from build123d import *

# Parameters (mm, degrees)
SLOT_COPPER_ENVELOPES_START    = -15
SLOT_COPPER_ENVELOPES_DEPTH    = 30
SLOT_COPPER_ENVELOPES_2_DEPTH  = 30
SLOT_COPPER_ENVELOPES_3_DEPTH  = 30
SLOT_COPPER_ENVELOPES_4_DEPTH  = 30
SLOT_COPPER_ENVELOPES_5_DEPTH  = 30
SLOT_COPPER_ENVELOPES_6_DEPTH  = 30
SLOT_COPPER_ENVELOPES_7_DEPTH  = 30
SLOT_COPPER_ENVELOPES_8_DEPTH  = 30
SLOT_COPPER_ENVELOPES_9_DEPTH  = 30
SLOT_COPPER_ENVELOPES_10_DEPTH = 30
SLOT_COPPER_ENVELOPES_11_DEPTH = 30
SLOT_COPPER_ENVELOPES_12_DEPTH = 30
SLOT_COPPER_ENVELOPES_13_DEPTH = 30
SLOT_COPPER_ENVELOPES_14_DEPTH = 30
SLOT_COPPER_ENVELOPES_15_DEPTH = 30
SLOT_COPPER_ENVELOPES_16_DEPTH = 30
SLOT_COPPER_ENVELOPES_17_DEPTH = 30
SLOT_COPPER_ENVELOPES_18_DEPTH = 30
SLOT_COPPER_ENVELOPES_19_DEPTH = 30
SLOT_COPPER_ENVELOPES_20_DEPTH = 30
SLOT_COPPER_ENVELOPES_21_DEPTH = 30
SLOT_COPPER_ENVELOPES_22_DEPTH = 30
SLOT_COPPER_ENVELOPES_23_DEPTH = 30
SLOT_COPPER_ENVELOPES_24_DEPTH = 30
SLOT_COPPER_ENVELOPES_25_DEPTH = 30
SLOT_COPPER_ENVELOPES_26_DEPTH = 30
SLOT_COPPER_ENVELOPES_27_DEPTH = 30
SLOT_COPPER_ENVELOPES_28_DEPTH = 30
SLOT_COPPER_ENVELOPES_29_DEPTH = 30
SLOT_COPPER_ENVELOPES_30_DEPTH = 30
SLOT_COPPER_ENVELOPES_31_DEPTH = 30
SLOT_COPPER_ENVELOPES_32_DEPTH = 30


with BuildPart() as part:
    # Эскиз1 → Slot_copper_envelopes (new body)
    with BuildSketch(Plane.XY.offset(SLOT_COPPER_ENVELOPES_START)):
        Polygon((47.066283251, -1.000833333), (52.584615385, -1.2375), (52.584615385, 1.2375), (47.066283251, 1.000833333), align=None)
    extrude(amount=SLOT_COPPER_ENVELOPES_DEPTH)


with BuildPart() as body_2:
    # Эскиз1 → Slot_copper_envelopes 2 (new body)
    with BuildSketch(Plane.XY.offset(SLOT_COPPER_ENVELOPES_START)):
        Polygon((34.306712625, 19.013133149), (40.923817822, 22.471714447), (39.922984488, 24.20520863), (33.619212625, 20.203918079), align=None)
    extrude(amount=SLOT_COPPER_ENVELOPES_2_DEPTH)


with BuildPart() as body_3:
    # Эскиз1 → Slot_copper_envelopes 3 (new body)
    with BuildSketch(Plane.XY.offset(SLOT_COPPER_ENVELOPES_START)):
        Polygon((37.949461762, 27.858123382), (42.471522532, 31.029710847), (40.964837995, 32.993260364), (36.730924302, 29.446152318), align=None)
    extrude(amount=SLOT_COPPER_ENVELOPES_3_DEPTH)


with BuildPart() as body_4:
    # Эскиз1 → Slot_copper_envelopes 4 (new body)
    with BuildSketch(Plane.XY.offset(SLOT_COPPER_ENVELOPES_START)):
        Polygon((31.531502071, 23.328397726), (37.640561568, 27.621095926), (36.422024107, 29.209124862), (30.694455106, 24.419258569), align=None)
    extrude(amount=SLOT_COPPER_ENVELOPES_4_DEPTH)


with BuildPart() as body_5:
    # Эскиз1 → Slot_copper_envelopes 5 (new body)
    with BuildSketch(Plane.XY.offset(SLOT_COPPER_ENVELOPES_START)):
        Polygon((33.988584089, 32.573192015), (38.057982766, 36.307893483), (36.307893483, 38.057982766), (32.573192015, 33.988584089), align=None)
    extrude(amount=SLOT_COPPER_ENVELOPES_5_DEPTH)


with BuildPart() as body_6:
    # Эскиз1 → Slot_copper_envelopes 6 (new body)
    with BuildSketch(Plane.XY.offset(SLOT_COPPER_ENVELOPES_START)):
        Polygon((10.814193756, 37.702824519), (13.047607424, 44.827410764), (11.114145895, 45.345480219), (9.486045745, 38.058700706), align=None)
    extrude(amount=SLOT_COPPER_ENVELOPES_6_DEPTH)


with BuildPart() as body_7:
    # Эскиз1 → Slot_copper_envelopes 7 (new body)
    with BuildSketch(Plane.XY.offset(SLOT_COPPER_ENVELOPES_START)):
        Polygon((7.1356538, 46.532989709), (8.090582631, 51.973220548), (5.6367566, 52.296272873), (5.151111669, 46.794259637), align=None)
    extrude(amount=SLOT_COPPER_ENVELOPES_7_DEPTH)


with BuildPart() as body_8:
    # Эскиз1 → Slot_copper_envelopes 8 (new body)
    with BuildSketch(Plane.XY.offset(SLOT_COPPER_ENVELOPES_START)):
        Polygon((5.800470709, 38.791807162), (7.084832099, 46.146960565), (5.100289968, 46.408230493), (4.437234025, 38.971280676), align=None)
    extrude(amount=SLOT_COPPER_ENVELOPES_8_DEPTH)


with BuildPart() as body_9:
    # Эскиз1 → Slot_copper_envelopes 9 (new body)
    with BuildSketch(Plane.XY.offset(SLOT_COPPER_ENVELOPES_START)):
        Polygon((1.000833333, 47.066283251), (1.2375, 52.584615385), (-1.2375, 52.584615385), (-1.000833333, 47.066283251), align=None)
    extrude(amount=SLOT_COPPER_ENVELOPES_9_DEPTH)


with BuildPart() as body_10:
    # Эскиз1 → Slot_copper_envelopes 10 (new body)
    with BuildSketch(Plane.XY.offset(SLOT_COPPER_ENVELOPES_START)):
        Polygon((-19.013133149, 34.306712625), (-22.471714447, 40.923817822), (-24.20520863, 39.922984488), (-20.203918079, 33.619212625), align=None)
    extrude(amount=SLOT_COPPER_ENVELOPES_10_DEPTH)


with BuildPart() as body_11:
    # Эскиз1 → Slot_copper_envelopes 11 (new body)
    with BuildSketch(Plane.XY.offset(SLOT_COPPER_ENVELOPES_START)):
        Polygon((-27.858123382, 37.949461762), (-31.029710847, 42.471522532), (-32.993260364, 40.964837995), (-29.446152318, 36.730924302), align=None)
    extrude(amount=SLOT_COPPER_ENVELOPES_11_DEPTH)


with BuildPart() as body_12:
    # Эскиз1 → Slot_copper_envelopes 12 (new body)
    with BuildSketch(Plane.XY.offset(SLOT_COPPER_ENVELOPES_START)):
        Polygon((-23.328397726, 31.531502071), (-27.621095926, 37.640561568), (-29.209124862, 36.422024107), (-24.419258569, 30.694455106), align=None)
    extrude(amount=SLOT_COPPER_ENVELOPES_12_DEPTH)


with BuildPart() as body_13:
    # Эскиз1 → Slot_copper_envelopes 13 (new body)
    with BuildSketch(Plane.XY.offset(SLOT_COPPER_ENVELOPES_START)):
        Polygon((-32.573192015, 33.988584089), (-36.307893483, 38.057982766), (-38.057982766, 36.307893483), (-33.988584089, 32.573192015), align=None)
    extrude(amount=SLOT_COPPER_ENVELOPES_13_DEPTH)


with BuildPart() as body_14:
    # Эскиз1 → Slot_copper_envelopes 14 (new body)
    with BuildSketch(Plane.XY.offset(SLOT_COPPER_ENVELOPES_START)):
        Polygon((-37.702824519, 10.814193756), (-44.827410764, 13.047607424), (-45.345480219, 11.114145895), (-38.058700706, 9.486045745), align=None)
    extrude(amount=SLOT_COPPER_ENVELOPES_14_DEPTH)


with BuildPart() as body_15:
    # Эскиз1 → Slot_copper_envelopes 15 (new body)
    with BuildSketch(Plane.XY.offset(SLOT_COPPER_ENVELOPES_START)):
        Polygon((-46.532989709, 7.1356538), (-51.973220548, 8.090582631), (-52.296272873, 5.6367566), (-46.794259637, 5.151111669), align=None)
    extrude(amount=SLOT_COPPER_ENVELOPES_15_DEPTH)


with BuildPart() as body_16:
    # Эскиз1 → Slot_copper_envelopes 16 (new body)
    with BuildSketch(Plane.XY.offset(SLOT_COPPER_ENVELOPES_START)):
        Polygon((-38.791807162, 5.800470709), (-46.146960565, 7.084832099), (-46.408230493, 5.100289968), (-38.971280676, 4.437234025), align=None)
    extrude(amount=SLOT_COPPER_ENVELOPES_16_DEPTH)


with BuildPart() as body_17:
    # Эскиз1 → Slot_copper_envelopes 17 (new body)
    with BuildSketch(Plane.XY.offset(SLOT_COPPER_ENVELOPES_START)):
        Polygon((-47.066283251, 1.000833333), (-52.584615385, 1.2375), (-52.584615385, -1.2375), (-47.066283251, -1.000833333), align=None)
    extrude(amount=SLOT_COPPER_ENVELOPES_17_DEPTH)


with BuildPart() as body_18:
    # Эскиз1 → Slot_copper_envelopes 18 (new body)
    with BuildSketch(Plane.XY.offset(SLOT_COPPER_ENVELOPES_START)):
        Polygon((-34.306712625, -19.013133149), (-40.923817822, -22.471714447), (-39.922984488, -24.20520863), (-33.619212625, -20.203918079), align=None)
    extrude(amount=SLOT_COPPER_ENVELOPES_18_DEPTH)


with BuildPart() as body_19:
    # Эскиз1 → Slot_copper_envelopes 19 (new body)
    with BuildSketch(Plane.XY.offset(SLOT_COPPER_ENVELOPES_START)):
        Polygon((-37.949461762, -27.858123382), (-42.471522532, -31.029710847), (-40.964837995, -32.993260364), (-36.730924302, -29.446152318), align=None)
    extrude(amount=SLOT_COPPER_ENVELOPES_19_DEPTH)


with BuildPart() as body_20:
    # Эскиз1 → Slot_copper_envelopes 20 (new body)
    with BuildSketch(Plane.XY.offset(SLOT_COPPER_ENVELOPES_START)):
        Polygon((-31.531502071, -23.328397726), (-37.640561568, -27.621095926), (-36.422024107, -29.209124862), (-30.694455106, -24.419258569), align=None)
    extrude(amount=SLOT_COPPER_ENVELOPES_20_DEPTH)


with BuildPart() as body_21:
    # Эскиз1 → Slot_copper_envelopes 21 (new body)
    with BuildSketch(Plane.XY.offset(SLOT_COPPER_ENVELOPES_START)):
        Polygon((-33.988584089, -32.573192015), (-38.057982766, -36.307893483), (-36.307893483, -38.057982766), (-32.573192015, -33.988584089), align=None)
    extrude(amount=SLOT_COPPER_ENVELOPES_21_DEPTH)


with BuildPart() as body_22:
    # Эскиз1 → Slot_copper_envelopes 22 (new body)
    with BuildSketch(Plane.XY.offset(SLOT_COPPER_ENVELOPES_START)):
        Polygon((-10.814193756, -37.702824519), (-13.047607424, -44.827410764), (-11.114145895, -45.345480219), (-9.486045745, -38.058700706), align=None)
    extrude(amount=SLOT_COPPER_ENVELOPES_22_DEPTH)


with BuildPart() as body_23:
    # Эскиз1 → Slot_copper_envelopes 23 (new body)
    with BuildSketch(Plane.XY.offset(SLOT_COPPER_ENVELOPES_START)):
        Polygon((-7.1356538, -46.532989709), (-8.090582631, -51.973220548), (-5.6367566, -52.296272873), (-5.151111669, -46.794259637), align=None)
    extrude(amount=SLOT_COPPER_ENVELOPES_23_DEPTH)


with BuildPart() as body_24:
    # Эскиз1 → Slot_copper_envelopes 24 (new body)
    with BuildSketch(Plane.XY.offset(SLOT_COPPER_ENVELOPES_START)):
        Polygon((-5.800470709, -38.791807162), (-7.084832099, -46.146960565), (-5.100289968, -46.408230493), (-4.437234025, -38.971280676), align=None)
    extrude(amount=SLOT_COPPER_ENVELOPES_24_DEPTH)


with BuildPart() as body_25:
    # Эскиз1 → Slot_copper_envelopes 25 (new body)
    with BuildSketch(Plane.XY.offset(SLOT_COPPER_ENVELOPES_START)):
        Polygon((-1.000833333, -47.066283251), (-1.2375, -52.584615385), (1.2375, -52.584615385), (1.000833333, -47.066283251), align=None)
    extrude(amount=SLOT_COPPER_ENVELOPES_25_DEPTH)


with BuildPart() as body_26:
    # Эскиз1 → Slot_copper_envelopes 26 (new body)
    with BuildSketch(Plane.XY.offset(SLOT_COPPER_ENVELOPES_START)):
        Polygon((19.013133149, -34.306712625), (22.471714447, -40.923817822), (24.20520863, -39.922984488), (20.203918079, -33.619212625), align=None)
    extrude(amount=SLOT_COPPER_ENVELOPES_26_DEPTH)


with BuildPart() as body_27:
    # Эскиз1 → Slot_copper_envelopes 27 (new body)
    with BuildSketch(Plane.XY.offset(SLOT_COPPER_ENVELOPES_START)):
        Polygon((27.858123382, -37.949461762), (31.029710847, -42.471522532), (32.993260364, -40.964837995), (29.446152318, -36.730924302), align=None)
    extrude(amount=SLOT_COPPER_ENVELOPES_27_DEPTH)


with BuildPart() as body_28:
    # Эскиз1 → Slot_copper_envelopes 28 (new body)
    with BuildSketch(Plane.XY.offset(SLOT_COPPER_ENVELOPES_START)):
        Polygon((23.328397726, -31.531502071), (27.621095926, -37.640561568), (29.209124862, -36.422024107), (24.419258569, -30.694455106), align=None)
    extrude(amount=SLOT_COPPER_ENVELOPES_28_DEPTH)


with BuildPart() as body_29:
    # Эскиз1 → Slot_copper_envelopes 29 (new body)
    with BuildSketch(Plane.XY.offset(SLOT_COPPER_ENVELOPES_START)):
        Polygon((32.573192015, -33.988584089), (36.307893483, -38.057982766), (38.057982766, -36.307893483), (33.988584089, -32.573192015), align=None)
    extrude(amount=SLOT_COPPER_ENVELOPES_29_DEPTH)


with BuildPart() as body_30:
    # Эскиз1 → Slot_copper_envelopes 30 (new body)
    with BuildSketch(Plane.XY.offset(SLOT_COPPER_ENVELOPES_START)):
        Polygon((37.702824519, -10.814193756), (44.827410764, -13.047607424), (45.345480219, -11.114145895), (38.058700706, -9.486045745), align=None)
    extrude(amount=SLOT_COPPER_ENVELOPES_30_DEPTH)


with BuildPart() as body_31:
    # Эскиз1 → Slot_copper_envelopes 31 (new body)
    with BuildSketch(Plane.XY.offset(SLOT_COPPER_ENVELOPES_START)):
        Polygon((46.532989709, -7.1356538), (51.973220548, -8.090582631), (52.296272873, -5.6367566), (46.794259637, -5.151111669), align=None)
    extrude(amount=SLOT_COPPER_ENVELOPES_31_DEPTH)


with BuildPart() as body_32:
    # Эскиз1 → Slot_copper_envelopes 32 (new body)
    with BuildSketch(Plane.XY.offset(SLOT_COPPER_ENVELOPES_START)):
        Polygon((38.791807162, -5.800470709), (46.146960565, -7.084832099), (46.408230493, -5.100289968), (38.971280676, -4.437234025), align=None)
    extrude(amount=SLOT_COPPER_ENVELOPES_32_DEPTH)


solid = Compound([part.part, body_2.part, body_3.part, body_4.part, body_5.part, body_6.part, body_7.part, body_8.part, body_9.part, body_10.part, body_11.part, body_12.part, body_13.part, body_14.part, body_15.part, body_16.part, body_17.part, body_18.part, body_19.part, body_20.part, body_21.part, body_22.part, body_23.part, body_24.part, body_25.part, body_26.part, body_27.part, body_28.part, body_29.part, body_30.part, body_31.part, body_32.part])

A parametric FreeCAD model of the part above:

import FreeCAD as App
import Part
import Sketcher
Q = App.Units.Quantity


def add_polygon(sketch, points):
    """Adds a closed chain of lines whose ends are joined by coincident constraints."""
    first, n = sketch.GeometryCount, len(points)
    for a, b in zip(points, points[1:] + points[:1]):
        sketch.addGeometry(Part.LineSegment(App.Vector(*a, 0), App.Vector(*b, 0)), False)
    for i in range(n):
        sketch.addConstraint(Sketcher.Constraint("Coincident", first + i, 2, first + (i + 1) % n, 1))

doc = App.newDocument("Part")
body = doc.addObject("PartDesign::Body", "Body")

# Sketch on XY plane
sketch1 = doc.addObject("Sketcher::SketchObject", "Sketch")
body.addObject(sketch1)
sketch1.AttachmentSupport = (doc.XY_Plane, [""])
sketch1.MapMode = "FlatFace"
sketch1.AttachmentOffset = App.Placement(App.Vector(0, 0, -15), App.Rotation())
add_polygon(sketch1, [(47.1, -1), (52.6, -1.2), (52.6, 1.2), (47.1, 1)])  # lines 0-3
sketch1.addConstraint([
    Sketcher.Constraint("Vertical", 1),
    Sketcher.Constraint("Vertical", 3),
    Sketcher.Constraint("Equal", 0, 2),
    Sketcher.Constraint("DistanceY", 1, 1, 1, 2, Q("2.475 mm")),
    Sketcher.Constraint("DistanceY", 0, 2, -1, 1, Q("1.2375 mm")),
    Sketcher.Constraint("DistanceY", 3, 2, 3, 1, Q("2.001667 mm")),
    Sketcher.Constraint("Distance", 0, Q("5.523405 mm")),
    Sketcher.Constraint("DistanceX", -1, 1, 0, 2, Q("52.584615 mm")),
])
pad1 = doc.addObject("PartDesign::Pad", "Pad")
body.addObject(pad1)
pad1.Profile = sketch1
pad1.Length = 30
body2 = doc.addObject("PartDesign::Body", "Body001")

# Sketch on XY plane
sketch2 = doc.addObject("Sketcher::SketchObject", "Sketch001")
body2.addObject(sketch2)
sketch2.AttachmentSupport = (doc.getObject("XY_Plane001"), [""])
sketch2.MapMode = "FlatFace"
sketch2.AttachmentOffset = App.Placement(App.Vector(0, 0, -15), App.Rotation())
add_polygon(sketch2, [(34.3, 19), (40.9, 22.5), (39.9, 24.2), (33.6, 20.2)])  # lines 0-3
sketch2.addConstraint([
    Sketcher.Constraint("Parallel", 1, 3),
    Sketcher.Constraint("Equal", 0, 2),
    Sketcher.Constraint("Angle", 1, Q("120 deg")),
    Sketcher.Constraint("Distance", 3, Q("1.375 mm")),
    Sketcher.Constraint("Distance", 0, Q("7.466449 mm")),
    Sketcher.Constraint("DistanceY", -1, 1, 1, 2, Q("24.205209 mm")),
    Sketcher.Constraint("DistanceY", -1, 1, 2, 2, Q("20.203918 mm")),
    Sketcher.Constraint("DistanceX", -1, 1, 0, 2, Q("40.923818 mm")),
])
pad2 = doc.addObject("PartDesign::Pad", "Pad001")
body2.addObject(pad2)
pad2.Profile = sketch2
pad2.Length = 30
body3 = doc.addObject("PartDesign::Body", "Body002")

# Sketch on XY plane
sketch3 = doc.addObject("Sketcher::SketchObject", "Sketch002")
body3.addObject(sketch3)
sketch3.AttachmentSupport = (doc.getObject("XY_Plane002"), [""])
sketch3.MapMode = "FlatFace"
sketch3.AttachmentOffset = App.Placement(App.Vector(0, 0, -15), App.Rotation())
add_polygon(sketch3, [(37.9, 27.9), (42.5, 31), (41, 33), (36.7, 29.4)])  # lines 0-3
sketch3.addConstraint([
    Sketcher.Constraint("Parallel", 1, 3),
    Sketcher.Constraint("Equal", 0, 2),
    Sketcher.Constraint("Angle", 1, Q("127.5 deg")),
    Sketcher.Constraint("Distance", 1, Q("2.475 mm")),
    Sketcher.Constraint("DistanceX", 2, 2, 0, 2, Q("5.740598 mm")),
    Sketcher.Constraint("DistanceY", -1, 1, 0, 2, Q("31.029711 mm")),
    Sketcher.Constraint("DistanceX", -1, 1, 3, 2, Q("37.949462 mm")),
    Sketcher.Constraint("DistanceY", 2, 2, 1, 2, Q("3.547108 mm")),
])
pad3 = doc.addObject("PartDesign::Pad", "Pad002")
body3.addObject(pad3)
pad3.Profile = sketch3
pad3.Length = 30
body4 = doc.addObject("PartDesign::Body", "Body003")

# Sketch on XY plane
sketch4 = doc.addObject("Sketcher::SketchObject", "Sketch003")
body4.addObject(sketch4)
sketch4.AttachmentSupport = (doc.getObject("XY_Plane003"), [""])
sketch4.MapMode = "FlatFace"
sketch4.AttachmentOffset = App.Placement(App.Vector(0, 0, -15), App.Rotation())
add_polygon(sketch4, [(31.5, 23.3), (37.6, 27.6), (36.4, 29.2), (30.7, 24.4)])  # lines 0-3
sketch4.addConstraint([
    Sketcher.Constraint("Parallel", 1, 3),
    Sketcher.Constraint("Equal", 0, 2),
    Sketcher.Constraint("Angle", 1, Q("127.5 deg")),
    Sketcher.Constraint("Distance", 3, Q("1.375 mm")),
    Sketcher.Constraint("DistanceY", 3, 2, 0, 2, Q("4.292698 mm")),
    Sketcher.Constraint("Distance", 0, Q("7.466449 mm")),
    Sketcher.Constraint("DistanceX", -1, 1, 0, 2, Q("37.640562 mm")),
    Sketcher.Constraint("DistanceY", -1, 1, 2, 2, Q("24.419259 mm")),
])
pad4 = doc.addObject("PartDesign::Pad", "Pad003")
body4.addObject(pad4)
pad4.Profile = sketch4
pad4.Length = 30
body5 = doc.addObject("PartDesign::Body", "Body004")

# Sketch on XY plane
sketch5 = doc.addObject("Sketcher::SketchObject", "Sketch004")
body5.addObject(sketch5)
sketch5.AttachmentSupport = (doc.getObject("XY_Plane004"), [""])
sketch5.MapMode = "FlatFace"
sketch5.AttachmentOffset = App.Placement(App.Vector(0, 0, -15), App.Rotation())
add_polygon(sketch5, [(34, 32.6), (38.1, 36.3), (36.3, 38.1), (32.6, 34)])  # lines 0-3
sketch5.addConstraint([
    Sketcher.Constraint("Parallel", 1, 3),
    Sketcher.Constraint("Equal", 0, 2),
    Sketcher.Constraint("Angle", 1, Q("135 deg")),
    Sketcher.Constraint("Distance", 1, Q("2.475 mm")),
    Sketcher.Constraint("DistanceX", 2, 2, 1, 2, Q("3.734701 mm")),
    Sketcher.Constraint("DistanceY", 2, 2, 1, 2, Q("4.069399 mm")),
    Sketcher.Constraint("DistanceX", -1, 1, 0, 2, Q("38.057983 mm")),
    Sketcher.Constraint("DistanceY", -1, 1, 0, 2, Q("36.307893 mm")),
])
pad5 = doc.addObject("PartDesign::Pad", "Pad004")
body5.addObject(pad5)
pad5.Profile = sketch5
pad5.Length = 30
body6 = doc.addObject("PartDesign::Body", "Body005")

# Sketch on XY plane
sketch6 = doc.addObject("Sketcher::SketchObject", "Sketch005")
body6.addObject(sketch6)
sketch6.AttachmentSupport = (doc.getObject("XY_Plane005"), [""])
sketch6.MapMode = "FlatFace"
sketch6.AttachmentOffset = App.Placement(App.Vector(0, 0, -15), App.Rotation())
add_polygon(sketch6, [(10.8, 37.7), (13, 44.8), (11.1, 45.3), (9.5, 38.1)])  # lines 0-3
sketch6.addConstraint([
    Sketcher.Constraint("Parallel", 1, 3),
    Sketcher.Constraint("Equal", 0, 2),
    Sketcher.Constraint("Angle", 1, Q("165 deg")),
    Sketcher.Constraint("Distance", 3, Q("1.375 mm")),
    Sketcher.Constraint("DistanceY", -1, 1, 2, 2, Q("38.058701 mm")),
    Sketcher.Constraint("DistanceX", 2, 2, 1, 2, Q("1.6281 mm")),
    Sketcher.Constraint("Distance", 0, Q("7.466449 mm")),
    Sketcher.Constraint("DistanceX", -1, 1, 0, 2, Q("13.047607 mm")),
])
pad6 = doc.addObject("PartDesign::Pad", "Pad005")
body6.addObject(pad6)
pad6.Profile = sketch6
pad6.Length = 30
body7 = doc.addObject("PartDesign::Body", "Body006")

# Sketch on XY plane
sketch7 = doc.addObject("Sketcher::SketchObject", "Sketch006")
body7.addObject(sketch7)
sketch7.AttachmentSupport = (doc.getObject("XY_Plane006"), [""])
sketch7.MapMode = "FlatFace"
sketch7.AttachmentOffset = App.Placement(App.Vector(0, 0, -15), App.Rotation())
add_polygon(sketch7, [(7.1, 46.5), (8.1, 52), (5.6, 52.3), (5.2, 46.8)])  # lines 0-3
sketch7.addConstraint([
    Sketcher.Constraint("Parallel", 1, 3),
    Sketcher.Constraint("Equal", 0, 2),
    Sketcher.Constraint("Angle", 1, Q("172.5 deg")),
    Sketcher.Constraint("Distance", 1, Q("2.475 mm")),
    Sketcher.Constraint("DistanceY", -1, 1, 0, 2, Q("51.973221 mm")),
    Sketcher.Constraint("DistanceX", -1, 1, 2, 2, Q("5.151112 mm")),
    Sketcher.Constraint("DistanceY", -1, 1, 2, 2, Q("46.79426 mm")),
    Sketcher.Constraint("DistanceY", -1, 1, 3, 2, Q("46.53299 mm")),
])
pad7 = doc.addObject("PartDesign::Pad", "Pad006")
body7.addObject(pad7)
pad7.Profile = sketch7
pad7.Length = 30
body8 = doc.addObject("PartDesign::Body", "Body007")

# Sketch on XY plane
sketch8 = doc.addObject("Sketcher::SketchObject", "Sketch007")
body8.addObject(sketch8)
sketch8.AttachmentSupport = (doc.getObject("XY_Plane007"), [""])
sketch8.MapMode = "FlatFace"
sketch8.AttachmentOffset = App.Placement(App.Vector(0, 0, -15), App.Rotation())
add_polygon(sketch8, [(5.8, 38.8), (7.1, 46.1), (5.1, 46.4), (4.4, 39)])  # lines 0-3
sketch8.addConstraint([
    Sketcher.Constraint("Parallel", 1, 3),
    Sketcher.Constraint("Equal", 0, 2),
    Sketcher.Constraint("Angle", 1, Q("172.5 deg")),
    Sketcher.Constraint("Distance", 3, Q("1.375 mm")),
    Sketcher.Constraint("DistanceX", 2, 2, 0, 2, Q("2.647598 mm")),
    Sketcher.Constraint("Distance", 0, Q("7.466449 mm")),
    Sketcher.Constraint("DistanceY", -1, 1, 0, 2, Q("46.146961 mm")),
    Sketcher.Constraint("DistanceX", -1, 1, 1, 2, Q("5.10029 mm")),
])
pad8 = doc.addObject("PartDesign::Pad", "Pad007")
body8.addObject(pad8)
pad8.Profile = sketch8
pad8.Length = 30
body9 = doc.addObject("PartDesign::Body", "Body008")

# Sketch on XY plane
sketch9 = doc.addObject("Sketcher::SketchObject", "Sketch008")
body9.addObject(sketch9)
sketch9.AttachmentSupport = (doc.getObject("XY_Plane008"), [""])
sketch9.MapMode = "FlatFace"
sketch9.AttachmentOffset = App.Placement(App.Vector(0, 0, -15), App.Rotation())
add_polygon(sketch9, [(1, 47.1), (1.2, 52.6), (-1.2, 52.6), (-1, 47.1)])  # lines 0-3
sketch9.addConstraint([
    Sketcher.Constraint("Horizontal", 1),
    Sketcher.Constraint("Horizontal", 3),
    Sketcher.Constraint("Equal", 0, 2),
    Sketcher.Constraint("DistanceX", 1, 2, 1, 1, Q("2.475 mm")),
    Sketcher.Constraint("DistanceX", -1, 1, 0, 2, Q("1.2375 mm")),
    Sketcher.Constraint("DistanceX", 3, 1, 3, 2, Q("2.001667 mm")),
    Sketcher.Constraint("Distance", 0, Q("5.523405 mm")),
    Sketcher.Constraint("DistanceY", -1, 1, 0, 2, Q("52.584615 mm")),
])
pad9 = doc.addObject("PartDesign::Pad", "Pad008")
body9.addObject(pad9)
pad9.Profile = sketch9
pad9.Length = 30
body10 = doc.addObject("PartDesign::Body", "Body009")

# Sketch on XY plane
sketch10 = doc.addObject("Sketcher::SketchObject", "Sketch009")
body10.addObject(sketch10)
sketch10.AttachmentSupport = (doc.getObject("XY_Plane009"), [""])
sketch10.MapMode = "FlatFace"
sketch10.AttachmentOffset = App.Placement(App.Vector(0, 0, -15), App.Rotation())
add_polygon(sketch10, [(-19, 34.3), (-22.5, 40.9), (-24.2, 39.9), (-20.2, 33.6)])  # lines 0-3
sketch10.addConstraint([
    Sketcher.Constraint("Parallel", 1, 3),
    Sketcher.Constraint("Equal", 0, 2),
    Sketcher.Constraint("Angle", 1, Q("-150 deg")),
    Sketcher.Constraint("Distance", 3, Q("1.375 mm")),
    Sketcher.Constraint("Distance", 0, Q("7.466449 mm")),
    Sketcher.Constraint("DistanceX", 1, 2, -1, 1, Q("24.205209 mm")),
    Sketcher.Constraint("DistanceX", 2, 2, -1, 1, Q("20.203918 mm")),
    Sketcher.Constraint("DistanceY", -1, 1, 0, 2, Q("40.923818 mm")),
])
pad10 = doc.addObject("PartDesign::Pad", "Pad009")
body10.addObject(pad10)
pad10.Profile = sketch10
pad10.Length = 30
body11 = doc.addObject("PartDesign::Body", "Body010")

# Sketch on XY plane
sketch11 = doc.addObject("Sketcher::SketchObject", "Sketch010")
body11.addObject(sketch11)
sketch11.AttachmentSupport = (doc.getObject("XY_Plane010"), [""])
sketch11.MapMode = "FlatFace"
sketch11.AttachmentOffset = App.Placement(App.Vector(0, 0, -15), App.Rotation())
add_polygon(sketch11, [(-27.9, 37.9), (-31, 42.5), (-33, 41), (-29.4, 36.7)])  # lines 0-3
sketch11.addConstraint([
    Sketcher.Constraint("Parallel", 1, 3),
    Sketcher.Constraint("Equal", 0, 2),
    Sketcher.Constraint("Angle", 1, Q("-142.5 deg")),
    Sketcher.Constraint("Distance", 1, Q("2.475 mm")),
    Sketcher.Constraint("DistanceY", 2, 2, 0, 2, Q("5.740598 mm")),
    Sketcher.Constraint("DistanceX", 0, 2, -1, 1, Q("31.029711 mm")),
    Sketcher.Constraint("DistanceY", -1, 1, 3, 2, Q("37.949462 mm")),
    Sketcher.Constraint("DistanceX", 1, 2, 2, 2, Q("3.547108 mm")),
])
pad11 = doc.addObject("PartDesign::Pad", "Pad010")
body11.addObject(pad11)
pad11.Profile = sketch11
pad11.Length = 30
body12 = doc.addObject("PartDesign::Body", "Body011")

# Sketch on XY plane
sketch12 = doc.addObject("Sketcher::SketchObject", "Sketch011")
body12.addObject(sketch12)
sketch12.AttachmentSupport = (doc.getObject("XY_Plane011"), [""])
sketch12.MapMode = "FlatFace"
sketch12.AttachmentOffset = App.Placement(App.Vector(0, 0, -15), App.Rotation())
add_polygon(sketch12, [(-23.3, 31.5), (-27.6, 37.6), (-29.2, 36.4), (-24.4, 30.7)])  # lines 0-3
sketch12.addConstraint([
    Sketcher.Constraint("Parallel", 1, 3),
    Sketcher.Constraint("Equal", 0, 2),
    Sketcher.Constraint("Angle", 1, Q("-142.5 deg")),
    Sketcher.Constraint("Distance", 3, Q("1.375 mm")),
    Sketcher.Constraint("DistanceX", 0, 2, 3, 2, Q("4.292698 mm")),
    Sketcher.Constraint("Distance", 0, Q("7.466449 mm")),
    Sketcher.Constraint("DistanceY", -1, 1, 0, 2, Q("37.640562 mm")),
    Sketcher.Constraint("DistanceX", 2, 2, -1, 1, Q("24.419259 mm")),
])
pad12 = doc.addObject("PartDesign::Pad", "Pad011")
body12.addObject(pad12)
pad12.Profile = sketch12
pad12.Length = 30
body13 = doc.addObject("PartDesign::Body", "Body012")

# Sketch on XY plane
sketch13 = doc.addObject("Sketcher::SketchObject", "Sketch012")
body13.addObject(sketch13)
sketch13.AttachmentSupport = (doc.getObject("XY_Plane012"), [""])
sketch13.MapMode = "FlatFace"
sketch13.AttachmentOffset = App.Placement(App.Vector(0, 0, -15), App.Rotation())
add_polygon(sketch13, [(-32.6, 34), (-36.3, 38.1), (-38.1, 36.3), (-34, 32.6)])  # lines 0-3
sketch13.addConstraint([
    Sketcher.Constraint("Parallel", 1, 3),
    Sketcher.Constraint("Equal", 0, 2),
    Sketcher.Constraint("Angle", 1, Q("-135 deg")),
    Sketcher.Constraint("Distance", 1, Q("2.475 mm")),
    Sketcher.Constraint("DistanceX", 1, 2, 2, 2, Q("4.069399 mm")),
    Sketcher.Constraint("DistanceY", 2, 2, 1, 2, Q("3.734701 mm")),
    Sketcher.Constraint("DistanceX", 0, 2, -1, 1, Q("36.307893 mm")),
    Sketcher.Constraint("DistanceY", -1, 1, 0, 2, Q("38.057983 mm")),
])
pad13 = doc.addObject("PartDesign::Pad", "Pad012")
body13.addObject(pad13)
pad13.Profile = sketch13
pad13.Length = 30
body14 = doc.addObject("PartDesign::Body", "Body013")

# Sketch on XY plane
sketch14 = doc.addObject("Sketcher::SketchObject", "Sketch013")
body14.addObject(sketch14)
sketch14.AttachmentSupport = (doc.getObject("XY_Plane013"), [""])
sketch14.MapMode = "FlatFace"
sketch14.AttachmentOffset = App.Placement(App.Vector(0, 0, -15), App.Rotation())
add_polygon(sketch14, [(-37.7, 10.8), (-44.8, 13), (-45.3, 11.1), (-38.1, 9.5)])  # lines 0-3
sketch14.addConstraint([
    Sketcher.Constraint("Parallel", 1, 3),
    Sketcher.Constraint("Equal", 0, 2),
    Sketcher.Constraint("Angle", 1, Q("-105 deg")),
    Sketcher.Constraint("Distance", 3, Q("1.375 mm")),
    Sketcher.Constraint("DistanceX", 2, 2, -1, 1, Q("38.058701 mm")),
    Sketcher.Constraint("DistanceY", 2, 2, 1, 2, Q("1.6281 mm")),
    Sketcher.Constraint("Distance", 0, Q("7.466449 mm")),
    Sketcher.Constraint("DistanceY", -1, 1, 0, 2, Q("13.047607 mm")),
])
pad14 = doc.addObject("PartDesign::Pad", "Pad013")
body14.addObject(pad14)
pad14.Profile = sketch14
pad14.Length = 30
body15 = doc.addObject("PartDesign::Body", "Body014")

# Sketch on XY plane
sketch15 = doc.addObject("Sketcher::SketchObject", "Sketch014")
body15.addObject(sketch15)
sketch15.AttachmentSupport = (doc.getObject("XY_Plane014"), [""])
sketch15.MapMode = "FlatFace"
sketch15.AttachmentOffset = App.Placement(App.Vector(0, 0, -15), App.Rotation())
add_polygon(sketch15, [(-46.5, 7.1), (-52, 8.1), (-52.3, 5.6), (-46.8, 5.2)])  # lines 0-3
sketch15.addConstraint([
    Sketcher.Constraint("Parallel", 1, 3),
    Sketcher.Constraint("Equal", 0, 2),
    Sketcher.Constraint("Angle", 1, Q("-97.5 deg")),
    Sketcher.Constraint("Distance", 1, Q("2.475 mm")),
    Sketcher.Constraint("DistanceX", 0, 2, -1, 1, Q("51.973221 mm")),
    Sketcher.Constraint("DistanceX", 2, 2, -1, 1, Q("46.79426 mm")),
    Sketcher.Constraint("DistanceY", -1, 1, 2, 2, Q("5.151112 mm")),
    Sketcher.Constraint("DistanceX", 3, 2, -1, 1, Q("46.53299 mm")),
])
pad15 = doc.addObject("PartDesign::Pad", "Pad014")
body15.addObject(pad15)
pad15.Profile = sketch15
pad15.Length = 30
body16 = doc.addObject("PartDesign::Body", "Body015")

# Sketch on XY plane
sketch16 = doc.addObject("Sketcher::SketchObject", "Sketch015")
body16.addObject(sketch16)
sketch16.AttachmentSupport = (doc.getObject("XY_Plane015"), [""])
sketch16.MapMode = "FlatFace"
sketch16.AttachmentOffset = App.Placement(App.Vector(0, 0, -15), App.Rotation())
add_polygon(sketch16, [(-38.8, 5.8), (-46.1, 7.1), (-46.4, 5.1), (-39, 4.4)])  # lines 0-3
sketch16.addConstraint([
    Sketcher.Constraint("Parallel", 1, 3),
    Sketcher.Constraint("Equal", 0, 2),
    Sketcher.Constraint("Angle", 1, Q("-97.5 deg")),
    Sketcher.Constraint("Distance", 3, Q("1.375 mm")),
    Sketcher.Constraint("DistanceY", 2, 2, 0, 2, Q("2.647598 mm")),
    Sketcher.Constraint("Distance", 0, Q("7.466449 mm")),
    Sketcher.Constraint("DistanceX", 0, 2, -1, 1, Q("46.146961 mm")),
    Sketcher.Constraint("DistanceY", -1, 1, 1, 2, Q("5.10029 mm")),
])
pad16 = doc.addObject("PartDesign::Pad", "Pad015")
body16.addObject(pad16)
pad16.Profile = sketch16
pad16.Length = 30
body17 = doc.addObject("PartDesign::Body", "Body016")

# Sketch on XY plane
sketch17 = doc.addObject("Sketcher::SketchObject", "Sketch016")
body17.addObject(sketch17)
sketch17.AttachmentSupport = (doc.getObject("XY_Plane016"), [""])
sketch17.MapMode = "FlatFace"
sketch17.AttachmentOffset = App.Placement(App.Vector(0, 0, -15), App.Rotation())
add_polygon(sketch17, [(-47.1, 1), (-52.6, 1.2), (-52.6, -1.2), (-47.1, -1)])  # lines 0-3
sketch17.addConstraint([
    Sketcher.Constraint("Vertical", 1),
    Sketcher.Constraint("Vertical", 3),
    Sketcher.Constraint("Equal", 0, 2),
    Sketcher.Constraint("DistanceY", 1, 2, 1, 1, Q("2.475 mm")),
    Sketcher.Constraint("DistanceY", -1, 1, 0, 2, Q("1.2375 mm")),
    Sketcher.Constraint("DistanceY", 3, 1, 3, 2, Q("2.001667 mm")),
    Sketcher.Constraint("Distance", 0, Q("5.523405 mm")),
    Sketcher.Constraint("DistanceX", 0, 2, -1, 1, Q("52.584615 mm")),
])
pad17 = doc.addObject("PartDesign::Pad", "Pad016")
body17.addObject(pad17)
pad17.Profile = sketch17
pad17.Length = 30
body18 = doc.addObject("PartDesign::Body", "Body017")

# Sketch on XY plane
sketch18 = doc.addObject("Sketcher::SketchObject", "Sketch017")
body18.addObject(sketch18)
sketch18.AttachmentSupport = (doc.getObject("XY_Plane017"), [""])
sketch18.MapMode = "FlatFace"
sketch18.AttachmentOffset = App.Placement(App.Vector(0, 0, -15), App.Rotation())
add_polygon(sketch18, [(-34.3, -19), (-40.9, -22.5), (-39.9, -24.2), (-33.6, -20.2)])  # lines 0-3
sketch18.addConstraint([
    Sketcher.Constraint("Parallel", 1, 3),
    Sketcher.Constraint("Equal", 0, 2),
    Sketcher.Constraint("Angle", 1, Q("-60 deg")),
    Sketcher.Constraint("Distance", 3, Q("1.375 mm")),
    Sketcher.Constraint("Distance", 0, Q("7.466449 mm")),
    Sketcher.Constraint("DistanceY", 1, 2, -1, 1, Q("24.205209 mm")),
    Sketcher.Constraint("DistanceY", 2, 2, -1, 1, Q("20.203918 mm")),
    Sketcher.Constraint("DistanceX", 0, 2, -1, 1, Q("40.923818 mm")),
])
pad18 = doc.addObject("PartDesign::Pad", "Pad017")
body18.addObject(pad18)
pad18.Profile = sketch18
pad18.Length = 30
body19 = doc.addObject("PartDesign::Body", "Body018")

# Sketch on XY plane
sketch19 = doc.addObject("Sketcher::SketchObject", "Sketch018")
body19.addObject(sketch19)
sketch19.AttachmentSupport = (doc.getObject("XY_Plane018"), [""])
sketch19.MapMode = "FlatFace"
sketch19.AttachmentOffset = App.Placement(App.Vector(0, 0, -15), App.Rotation())
add_polygon(sketch19, [(-37.9, -27.9), (-42.5, -31), (-41, -33), (-36.7, -29.4)])  # lines 0-3
sketch19.addConstraint([
    Sketcher.Constraint("Parallel", 1, 3),
    Sketcher.Constraint("Equal", 0, 2),
    Sketcher.Constraint("Angle", 1, Q("-52.5 deg")),
    Sketcher.Constraint("Distance", 1, Q("2.475 mm")),
    Sketcher.Constraint("DistanceX", 0, 2, 2, 2, Q("5.740598 mm")),
    Sketcher.Constraint("DistanceY", 0, 2, -1, 1, Q("31.029711 mm")),
    Sketcher.Constraint("DistanceX", 3, 2, -1, 1, Q("37.949462 mm")),
    Sketcher.Constraint("DistanceY", 1, 2, 2, 2, Q("3.547108 mm")),
])
pad19 = doc.addObject("PartDesign::Pad", "Pad018")
body19.addObject(pad19)
pad19.Profile = sketch19
pad19.Length = 30
body20 = doc.addObject("PartDesign::Body", "Body019")

# Sketch on XY plane
sketch20 = doc.addObject("Sketcher::SketchObject", "Sketch019")
body20.addObject(sketch20)
sketch20.AttachmentSupport = (doc.getObject("XY_Plane019"), [""])
sketch20.MapMode = "FlatFace"
sketch20.AttachmentOffset = App.Placement(App.Vector(0, 0, -15), App.Rotation())
add_polygon(sketch20, [(-31.5, -23.3), (-37.6, -27.6), (-36.4, -29.2), (-30.7, -24.4)])  # lines 0-3
sketch20.addConstraint([
    Sketcher.Constraint("Parallel", 1, 3),
    Sketcher.Constraint("Equal", 0, 2),
    Sketcher.Constraint("Angle", 1, Q("-52.5 deg")),
    Sketcher.Constraint("Distance", 3, Q("1.375 mm")),
    Sketcher.Constraint("DistanceY", 0, 2, 3, 2, Q("4.292698 mm")),
    Sketcher.Constraint("Distance", 0, Q("7.466449 mm")),
    Sketcher.Constraint("DistanceX", 0, 2, -1, 1, Q("37.640562 mm")),
    Sketcher.Constraint("DistanceY", 2, 2, -1, 1, Q("24.419259 mm")),
])
pad20 = doc.addObject("PartDesign::Pad", "Pad019")
body20.addObject(pad20)
pad20.Profile = sketch20
pad20.Length = 30
body21 = doc.addObject("PartDesign::Body", "Body020")

# Sketch on XY plane
sketch21 = doc.addObject("Sketcher::SketchObject", "Sketch020")
body21.addObject(sketch21)
sketch21.AttachmentSupport = (doc.getObject("XY_Plane020"), [""])
sketch21.MapMode = "FlatFace"
sketch21.AttachmentOffset = App.Placement(App.Vector(0, 0, -15), App.Rotation())
add_polygon(sketch21, [(-34, -32.6), (-38.1, -36.3), (-36.3, -38.1), (-32.6, -34)])  # lines 0-3
sketch21.addConstraint([
    Sketcher.Constraint("Parallel", 1, 3),
    Sketcher.Constraint("Equal", 0, 2),
    Sketcher.Constraint("Angle", 1, Q("-45 deg")),
    Sketcher.Constraint("Distance", 1, Q("2.475 mm")),
    Sketcher.Constraint("DistanceX", 1, 2, 2, 2, Q("3.734701 mm")),
    Sketcher.Constraint("DistanceY", 1, 2, 2, 2, Q("4.069399 mm")),
    Sketcher.Constraint("DistanceX", 0, 2, -1, 1, Q("38.057983 mm")),
    Sketcher.Constraint("DistanceY", 0, 2, -1, 1, Q("36.307893 mm")),
])
pad21 = doc.addObject("PartDesign::Pad", "Pad020")
body21.addObject(pad21)
pad21.Profile = sketch21
pad21.Length = 30
body22 = doc.addObject("PartDesign::Body", "Body021")

# Sketch on XY plane
sketch22 = doc.addObject("Sketcher::SketchObject", "Sketch021")
body22.addObject(sketch22)
sketch22.AttachmentSupport = (doc.getObject("XY_Plane021"), [""])
sketch22.MapMode = "FlatFace"
sketch22.AttachmentOffset = App.Placement(App.Vector(0, 0, -15), App.Rotation())
add_polygon(sketch22, [(-10.8, -37.7), (-13, -44.8), (-11.1, -45.3), (-9.5, -38.1)])  # lines 0-3
sketch22.addConstraint([
    Sketcher.Constraint("Parallel", 1, 3),
    Sketcher.Constraint("Equal", 0, 2),
    Sketcher.Constraint("Angle", 1, Q("-15 deg")),
    Sketcher.Constraint("Distance", 3, Q("1.375 mm")),
    Sketcher.Constraint("DistanceY", 2, 2, -1, 1, Q("38.058701 mm")),
    Sketcher.Constraint("DistanceX", 1, 2, 2, 2, Q("1.6281 mm")),
    Sketcher.Constraint("Distance", 0, Q("7.466449 mm")),
    Sketcher.Constraint("DistanceX", 0, 2, -1, 1, Q("13.047607 mm")),
])
pad22 = doc.addObject("PartDesign::Pad", "Pad021")
body22.addObject(pad22)
pad22.Profile = sketch22
pad22.Length = 30
body23 = doc.addObject("PartDesign::Body", "Body022")

# Sketch on XY plane
sketch23 = doc.addObject("Sketcher::SketchObject", "Sketch022")
body23.addObject(sketch23)
sketch23.AttachmentSupport = (doc.getObject("XY_Plane022"), [""])
sketch23.MapMode = "FlatFace"
sketch23.AttachmentOffset = App.Placement(App.Vector(0, 0, -15), App.Rotation())
add_polygon(sketch23, [(-7.1, -46.5), (-8.1, -52), (-5.6, -52.3), (-5.2, -46.8)])  # lines 0-3
sketch23.addConstraint([
    Sketcher.Constraint("Parallel", 1, 3),
    Sketcher.Constraint("Equal", 0, 2),
    Sketcher.Constraint("Angle", 1, Q("-7.5 deg")),
    Sketcher.Constraint("Distance", 1, Q("2.475 mm")),
    Sketcher.Constraint("DistanceY", 0, 2, -1, 1, Q("51.973221 mm")),
    Sketcher.Constraint("DistanceX", 2, 2, -1, 1, Q("5.151112 mm")),
    Sketcher.Constraint("DistanceY", 2, 2, -1, 1, Q("46.79426 mm")),
    Sketcher.Constraint("DistanceY", 3, 2, -1, 1, Q("46.53299 mm")),
])
pad23 = doc.addObject("PartDesign::Pad", "Pad022")
body23.addObject(pad23)
pad23.Profile = sketch23
pad23.Length = 30
body24 = doc.addObject("PartDesign::Body", "Body023")

# Sketch on XY plane
sketch24 = doc.addObject("Sketcher::SketchObject", "Sketch023")
body24.addObject(sketch24)
sketch24.AttachmentSupport = (doc.getObject("XY_Plane023"), [""])
sketch24.MapMode = "FlatFace"
sketch24.AttachmentOffset = App.Placement(App.Vector(0, 0, -15), App.Rotation())
add_polygon(sketch24, [(-5.8, -38.8), (-7.1, -46.1), (-5.1, -46.4), (-4.4, -39)])  # lines 0-3
sketch24.addConstraint([
    Sketcher.Constraint("Parallel", 1, 3),
    Sketcher.Constraint("Equal", 0, 2),
    Sketcher.Constraint("Angle", 1, Q("-7.5 deg")),
    Sketcher.Constraint("Distance", 3, Q("1.375 mm")),
    Sketcher.Constraint("DistanceX", 0, 2, 2, 2, Q("2.647598 mm")),
    Sketcher.Constraint("Distance", 0, Q("7.466449 mm")),
    Sketcher.Constraint("DistanceY", 0, 2, -1, 1, Q("46.146961 mm")),
    Sketcher.Constraint("DistanceX", 1, 2, -1, 1, Q("5.10029 mm")),
])
pad24 = doc.addObject("PartDesign::Pad", "Pad023")
body24.addObject(pad24)
pad24.Profile = sketch24
pad24.Length = 30
body25 = doc.addObject("PartDesign::Body", "Body024")

# Sketch on XY plane
sketch25 = doc.addObject("Sketcher::SketchObject", "Sketch024")
body25.addObject(sketch25)
sketch25.AttachmentSupport = (doc.getObject("XY_Plane024"), [""])
sketch25.MapMode = "FlatFace"
sketch25.AttachmentOffset = App.Placement(App.Vector(0, 0, -15), App.Rotation())
add_polygon(sketch25, [(-1, -47.1), (-1.2, -52.6), (1.2, -52.6), (1, -47.1)])  # lines 0-3
sketch25.addConstraint([
    Sketcher.Constraint("Horizontal", 1),
    Sketcher.Constraint("Horizontal", 3),
    Sketcher.Constraint("Equal", 0, 2),
    Sketcher.Constraint("DistanceX", 1, 1, 1, 2, Q("2.475 mm")),
    Sketcher.Constraint("DistanceX", 0, 2, -1, 1, Q("1.2375 mm")),
    Sketcher.Constraint("DistanceX", 3, 2, 3, 1, Q("2.001667 mm")),
    Sketcher.Constraint("Distance", 0, Q("5.523405 mm")),
    Sketcher.Constraint("DistanceY", 0, 2, -1, 1, Q("52.584615 mm")),
])
pad25 = doc.addObject("PartDesign::Pad", "Pad024")
body25.addObject(pad25)
pad25.Profile = sketch25
pad25.Length = 30
body26 = doc.addObject("PartDesign::Body", "Body025")

# Sketch on XY plane
sketch26 = doc.addObject("Sketcher::SketchObject", "Sketch025")
body26.addObject(sketch26)
sketch26.AttachmentSupport = (doc.getObject("XY_Plane025"), [""])
sketch26.MapMode = "FlatFace"
sketch26.AttachmentOffset = App.Placement(App.Vector(0, 0, -15), App.Rotation())
add_polygon(sketch26, [(19, -34.3), (22.5, -40.9), (24.2, -39.9), (20.2, -33.6)])  # lines 0-3
sketch26.addConstraint([
    Sketcher.Constraint("Parallel", 1, 3),
    Sketcher.Constraint("Equal", 0, 2),
    Sketcher.Constraint("Angle", 1, Q("30 deg")),
    Sketcher.Constraint("Distance", 3, Q("1.375 mm")),
    Sketcher.Constraint("Distance", 0, Q("7.466449 mm")),
    Sketcher.Constraint("DistanceX", -1, 1, 1, 2, Q("24.205209 mm")),
    Sketcher.Constraint("DistanceX", -1, 1, 2, 2, Q("20.203918 mm")),
    Sketcher.Constraint("DistanceY", 0, 2, -1, 1, Q("40.923818 mm")),
])
pad26 = doc.addObject("PartDesign::Pad", "Pad025")
body26.addObject(pad26)
pad26.Profile = sketch26
pad26.Length = 30
body27 = doc.addObject("PartDesign::Body", "Body026")

# Sketch on XY plane
sketch27 = doc.addObject("Sketcher::SketchObject", "Sketch026")
body27.addObject(sketch27)
sketch27.AttachmentSupport = (doc.getObject("XY_Plane026"), [""])
sketch27.MapMode = "FlatFace"
sketch27.AttachmentOffset = App.Placement(App.Vector(0, 0, -15), App.Rotation())
add_polygon(sketch27, [(27.9, -37.9), (31, -42.5), (33, -41), (29.4, -36.7)])  # lines 0-3
sketch27.addConstraint([
    Sketcher.Constraint("Parallel", 1, 3),
    Sketcher.Constraint("Equal", 0, 2),
    Sketcher.Constraint("Angle", 1, Q("37.5 deg")),
    Sketcher.Constraint("Distance", 1, Q("2.475 mm")),
    Sketcher.Constraint("DistanceY", 0, 2, 2, 2, Q("5.740598 mm")),
    Sketcher.Constraint("DistanceX", -1, 1, 0, 2, Q("31.029711 mm")),
    Sketcher.Constraint("DistanceY", 3, 2, -1, 1, Q("37.949462 mm")),
    Sketcher.Constraint("DistanceX", 2, 2, 1, 2, Q("3.547108 mm")),
])
pad27 = doc.addObject("PartDesign::Pad", "Pad026")
body27.addObject(pad27)
pad27.Profile = sketch27
pad27.Length = 30
body28 = doc.addObject("PartDesign::Body", "Body027")

# Sketch on XY plane
sketch28 = doc.addObject("Sketcher::SketchObject", "Sketch027")
body28.addObject(sketch28)
sketch28.AttachmentSupport = (doc.getObject("XY_Plane027"), [""])
sketch28.MapMode = "FlatFace"
sketch28.AttachmentOffset = App.Placement(App.Vector(0, 0, -15), App.Rotation())
add_polygon(sketch28, [(23.3, -31.5), (27.6, -37.6), (29.2, -36.4), (24.4, -30.7)])  # lines 0-3
sketch28.addConstraint([
    Sketcher.Constraint("Parallel", 1, 3),
    Sketcher.Constraint("Equal", 0, 2),
    Sketcher.Constraint("Angle", 1, Q("37.5 deg")),
    Sketcher.Constraint("Distance", 3, Q("1.375 mm")),
    Sketcher.Constraint("DistanceX", 3, 2, 0, 2, Q("4.292698 mm")),
    Sketcher.Constraint("Distance", 0, Q("7.466449 mm")),
    Sketcher.Constraint("DistanceY", 0, 2, -1, 1, Q("37.640562 mm")),
    Sketcher.Constraint("DistanceX", -1, 1, 2, 2, Q("24.419259 mm")),
])
pad28 = doc.addObject("PartDesign::Pad", "Pad027")
body28.addObject(pad28)
pad28.Profile = sketch28
pad28.Length = 30
body29 = doc.addObject("PartDesign::Body", "Body028")

# Sketch on XY plane
sketch29 = doc.addObject("Sketcher::SketchObject", "Sketch028")
body29.addObject(sketch29)
sketch29.AttachmentSupport = (doc.getObject("XY_Plane028"), [""])
sketch29.MapMode = "FlatFace"
sketch29.AttachmentOffset = App.Placement(App.Vector(0, 0, -15), App.Rotation())
add_polygon(sketch29, [(32.6, -34), (36.3, -38.1), (38.1, -36.3), (34, -32.6)])  # lines 0-3
sketch29.addConstraint([
    Sketcher.Constraint("Parallel", 1, 3),
    Sketcher.Constraint("Equal", 0, 2),
    Sketcher.Constraint("Angle", 1, Q("45 deg")),
    Sketcher.Constraint("Distance", 1, Q("2.475 mm")),
    Sketcher.Constraint("DistanceX", 2, 2, 1, 2, Q("4.069399 mm")),
    Sketcher.Constraint("DistanceY", 1, 2, 2, 2, Q("3.734701 mm")),
    Sketcher.Constraint("DistanceX", -1, 1, 0, 2, Q("36.307893 mm")),
    Sketcher.Constraint("DistanceY", 0, 2, -1, 1, Q("38.057983 mm")),
])
pad29 = doc.addObject("PartDesign::Pad", "Pad028")
body29.addObject(pad29)
pad29.Profile = sketch29
pad29.Length = 30
body30 = doc.addObject("PartDesign::Body", "Body029")

# Sketch on XY plane
sketch30 = doc.addObject("Sketcher::SketchObject", "Sketch029")
body30.addObject(sketch30)
sketch30.AttachmentSupport = (doc.getObject("XY_Plane029"), [""])
sketch30.MapMode = "FlatFace"
sketch30.AttachmentOffset = App.Placement(App.Vector(0, 0, -15), App.Rotation())
add_polygon(sketch30, [(37.7, -10.8), (44.8, -13), (45.3, -11.1), (38.1, -9.5)])  # lines 0-3
sketch30.addConstraint([
    Sketcher.Constraint("Parallel", 1, 3),
    Sketcher.Constraint("Equal", 0, 2),
    Sketcher.Constraint("Angle", 1, Q("75 deg")),
    Sketcher.Constraint("Distance", 3, Q("1.375 mm")),
    Sketcher.Constraint("DistanceX", -1, 1, 2, 2, Q("38.058701 mm")),
    Sketcher.Constraint("DistanceY", 1, 2, 2, 2, Q("1.6281 mm")),
    Sketcher.Constraint("Distance", 0, Q("7.466449 mm")),
    Sketcher.Constraint("DistanceY", 0, 2, -1, 1, Q("13.047607 mm")),
])
pad30 = doc.addObject("PartDesign::Pad", "Pad029")
body30.addObject(pad30)
pad30.Profile = sketch30
pad30.Length = 30
body31 = doc.addObject("PartDesign::Body", "Body030")

# Sketch on XY plane
sketch31 = doc.addObject("Sketcher::SketchObject", "Sketch030")
body31.addObject(sketch31)
sketch31.AttachmentSupport = (doc.getObject("XY_Plane030"), [""])
sketch31.MapMode = "FlatFace"
sketch31.AttachmentOffset = App.Placement(App.Vector(0, 0, -15), App.Rotation())
add_polygon(sketch31, [(46.5, -7.1), (52, -8.1), (52.3, -5.6), (46.8, -5.2)])  # lines 0-3
sketch31.addConstraint([
    Sketcher.Constraint("Parallel", 1, 3),
    Sketcher.Constraint("Equal", 0, 2),
    Sketcher.Constraint("Angle", 1, Q("82.5 deg")),
    Sketcher.Constraint("Distance", 1, Q("2.475 mm")),
    Sketcher.Constraint("DistanceX", -1, 1, 0, 2, Q("51.973221 mm")),
    Sketcher.Constraint("DistanceX", -1, 1, 2, 2, Q("46.79426 mm")),
    Sketcher.Constraint("DistanceY", 2, 2, -1, 1, Q("5.151112 mm")),
    Sketcher.Constraint("DistanceX", -1, 1, 3, 2, Q("46.53299 mm")),
])
pad31 = doc.addObject("PartDesign::Pad", "Pad030")
body31.addObject(pad31)
pad31.Profile = sketch31
pad31.Length = 30
body32 = doc.addObject("PartDesign::Body", "Body031")

# Sketch on XY plane
sketch32 = doc.addObject("Sketcher::SketchObject", "Sketch031")
body32.addObject(sketch32)
sketch32.AttachmentSupport = (doc.getObject("XY_Plane031"), [""])
sketch32.MapMode = "FlatFace"
sketch32.AttachmentOffset = App.Placement(App.Vector(0, 0, -15), App.Rotation())
add_polygon(sketch32, [(38.8, -5.8), (46.1, -7.1), (46.4, -5.1), (39, -4.4)])  # lines 0-3
sketch32.addConstraint([
    Sketcher.Constraint("Parallel", 1, 3),
    Sketcher.Constraint("Equal", 0, 2),
    Sketcher.Constraint("Angle", 1, Q("82.5 deg")),
    Sketcher.Constraint("Distance", 3, Q("1.375 mm")),
    Sketcher.Constraint("DistanceY", 0, 2, 2, 2, Q("2.647598 mm")),
    Sketcher.Constraint("Distance", 0, Q("7.466449 mm")),
    Sketcher.Constraint("DistanceX", -1, 1, 0, 2, Q("46.146961 mm")),
    Sketcher.Constraint("DistanceY", 1, 2, -1, 1, Q("5.10029 mm")),
])
pad32 = doc.addObject("PartDesign::Pad", "Pad031")
body32.addObject(pad32)
pad32.Profile = sketch32
pad32.Length = 30

doc.recompute()
